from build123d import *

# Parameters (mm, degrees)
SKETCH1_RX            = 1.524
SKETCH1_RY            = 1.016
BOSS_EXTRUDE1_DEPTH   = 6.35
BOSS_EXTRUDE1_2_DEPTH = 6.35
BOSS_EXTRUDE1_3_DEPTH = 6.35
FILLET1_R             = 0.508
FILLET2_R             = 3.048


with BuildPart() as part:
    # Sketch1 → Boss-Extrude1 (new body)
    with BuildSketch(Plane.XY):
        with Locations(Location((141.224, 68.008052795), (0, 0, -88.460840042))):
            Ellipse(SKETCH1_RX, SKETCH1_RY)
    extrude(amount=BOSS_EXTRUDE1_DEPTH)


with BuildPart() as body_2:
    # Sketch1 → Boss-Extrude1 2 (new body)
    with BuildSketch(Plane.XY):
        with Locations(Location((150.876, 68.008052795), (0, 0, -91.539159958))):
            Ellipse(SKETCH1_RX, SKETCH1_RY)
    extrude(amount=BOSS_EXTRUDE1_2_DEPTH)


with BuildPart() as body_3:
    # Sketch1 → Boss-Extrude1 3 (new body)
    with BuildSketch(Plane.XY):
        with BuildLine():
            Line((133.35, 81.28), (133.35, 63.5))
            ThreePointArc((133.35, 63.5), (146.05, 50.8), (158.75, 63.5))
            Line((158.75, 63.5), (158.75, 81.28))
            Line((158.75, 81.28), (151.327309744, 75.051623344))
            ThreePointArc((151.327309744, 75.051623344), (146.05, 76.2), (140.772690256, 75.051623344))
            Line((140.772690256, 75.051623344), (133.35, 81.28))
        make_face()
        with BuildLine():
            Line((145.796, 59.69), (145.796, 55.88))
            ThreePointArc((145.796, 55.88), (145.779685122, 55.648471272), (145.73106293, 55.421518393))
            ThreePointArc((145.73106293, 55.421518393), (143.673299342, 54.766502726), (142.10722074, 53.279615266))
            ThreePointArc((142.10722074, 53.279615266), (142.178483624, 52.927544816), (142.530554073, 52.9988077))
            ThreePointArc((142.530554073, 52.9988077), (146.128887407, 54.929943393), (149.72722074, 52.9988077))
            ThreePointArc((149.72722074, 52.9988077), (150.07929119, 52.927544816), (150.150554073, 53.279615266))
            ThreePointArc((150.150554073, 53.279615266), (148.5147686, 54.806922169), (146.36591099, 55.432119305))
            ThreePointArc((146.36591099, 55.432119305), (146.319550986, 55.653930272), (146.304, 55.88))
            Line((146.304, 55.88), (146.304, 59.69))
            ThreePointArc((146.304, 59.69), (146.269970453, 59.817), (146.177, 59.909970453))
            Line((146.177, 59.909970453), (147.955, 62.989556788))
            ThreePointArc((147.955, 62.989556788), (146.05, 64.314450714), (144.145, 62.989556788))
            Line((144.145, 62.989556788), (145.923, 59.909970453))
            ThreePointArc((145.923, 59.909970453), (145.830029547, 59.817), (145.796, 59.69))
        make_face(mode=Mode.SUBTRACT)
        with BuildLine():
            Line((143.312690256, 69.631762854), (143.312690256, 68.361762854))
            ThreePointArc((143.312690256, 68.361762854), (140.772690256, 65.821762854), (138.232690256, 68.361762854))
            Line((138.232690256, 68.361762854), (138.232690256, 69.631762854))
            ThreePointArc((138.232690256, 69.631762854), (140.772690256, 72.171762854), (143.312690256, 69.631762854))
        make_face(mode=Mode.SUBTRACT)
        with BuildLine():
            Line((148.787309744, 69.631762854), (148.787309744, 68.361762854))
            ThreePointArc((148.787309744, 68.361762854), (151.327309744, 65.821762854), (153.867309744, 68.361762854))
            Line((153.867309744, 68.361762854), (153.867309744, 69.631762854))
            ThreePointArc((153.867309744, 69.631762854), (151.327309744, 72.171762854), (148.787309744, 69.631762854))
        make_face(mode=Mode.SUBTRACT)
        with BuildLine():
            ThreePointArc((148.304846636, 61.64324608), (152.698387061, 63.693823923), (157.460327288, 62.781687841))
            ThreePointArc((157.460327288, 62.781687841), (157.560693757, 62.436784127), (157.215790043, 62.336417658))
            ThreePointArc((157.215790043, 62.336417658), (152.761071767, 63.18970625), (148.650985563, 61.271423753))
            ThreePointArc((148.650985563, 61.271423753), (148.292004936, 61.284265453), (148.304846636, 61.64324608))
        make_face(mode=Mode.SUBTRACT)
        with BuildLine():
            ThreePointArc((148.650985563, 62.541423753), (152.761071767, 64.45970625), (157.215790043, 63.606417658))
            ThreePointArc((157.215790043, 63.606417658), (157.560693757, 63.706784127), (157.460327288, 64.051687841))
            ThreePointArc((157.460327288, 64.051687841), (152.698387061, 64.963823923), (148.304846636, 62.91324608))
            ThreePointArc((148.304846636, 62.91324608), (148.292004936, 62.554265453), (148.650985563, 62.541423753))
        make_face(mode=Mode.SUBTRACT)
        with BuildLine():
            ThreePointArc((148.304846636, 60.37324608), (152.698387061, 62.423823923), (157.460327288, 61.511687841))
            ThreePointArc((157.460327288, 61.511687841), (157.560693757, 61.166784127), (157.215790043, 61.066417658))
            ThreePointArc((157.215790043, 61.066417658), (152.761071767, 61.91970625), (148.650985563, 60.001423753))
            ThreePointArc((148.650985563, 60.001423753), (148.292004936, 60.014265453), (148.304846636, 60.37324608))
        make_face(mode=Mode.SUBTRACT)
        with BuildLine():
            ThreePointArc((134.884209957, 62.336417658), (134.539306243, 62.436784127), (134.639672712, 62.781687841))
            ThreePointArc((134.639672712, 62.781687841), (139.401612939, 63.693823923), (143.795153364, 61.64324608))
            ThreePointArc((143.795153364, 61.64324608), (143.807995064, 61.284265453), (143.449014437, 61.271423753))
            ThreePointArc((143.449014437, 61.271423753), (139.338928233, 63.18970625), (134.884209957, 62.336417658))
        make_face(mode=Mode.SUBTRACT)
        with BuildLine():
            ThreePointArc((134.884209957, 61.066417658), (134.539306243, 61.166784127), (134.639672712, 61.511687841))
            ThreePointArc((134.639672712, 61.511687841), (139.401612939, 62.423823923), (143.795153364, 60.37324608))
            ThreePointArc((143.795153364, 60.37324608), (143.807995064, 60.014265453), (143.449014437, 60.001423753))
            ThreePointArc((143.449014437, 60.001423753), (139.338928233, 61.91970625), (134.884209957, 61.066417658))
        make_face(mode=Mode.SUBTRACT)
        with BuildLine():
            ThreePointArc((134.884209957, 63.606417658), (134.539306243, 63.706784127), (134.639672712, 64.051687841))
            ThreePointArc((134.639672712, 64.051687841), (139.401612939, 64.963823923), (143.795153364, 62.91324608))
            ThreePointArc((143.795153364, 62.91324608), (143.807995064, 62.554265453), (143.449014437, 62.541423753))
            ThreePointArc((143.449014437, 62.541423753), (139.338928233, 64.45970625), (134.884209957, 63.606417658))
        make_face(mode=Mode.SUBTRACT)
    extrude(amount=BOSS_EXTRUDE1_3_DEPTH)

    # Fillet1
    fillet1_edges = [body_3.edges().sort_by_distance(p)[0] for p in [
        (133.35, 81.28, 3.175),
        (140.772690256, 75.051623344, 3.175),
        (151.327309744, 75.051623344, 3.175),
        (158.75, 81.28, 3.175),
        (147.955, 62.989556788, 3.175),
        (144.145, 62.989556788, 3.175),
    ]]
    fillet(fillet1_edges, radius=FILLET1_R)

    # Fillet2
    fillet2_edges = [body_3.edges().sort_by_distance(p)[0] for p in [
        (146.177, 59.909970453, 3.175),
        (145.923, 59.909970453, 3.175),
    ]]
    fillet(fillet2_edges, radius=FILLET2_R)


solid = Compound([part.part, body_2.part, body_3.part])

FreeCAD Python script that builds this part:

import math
import FreeCAD as App
import Part
import Sketcher
from FreeCAD import Vector
Q = App.Units.Quantity


def edges_at(feature, points):
    """Names of the edges that pass closest to the given points."""
    edges = feature.Shape.Edges
    near = lambda p: min(range(len(edges)), key=lambda i: edges[i].distToShape(Part.Vertex(*p))[0])
    return sorted({f"Edge{near(p) + 1}" for p in points})

doc = App.newDocument("Part")
body = doc.addObject("PartDesign::Body", "Body")

# Sketch on XY plane
sketch1 = doc.addObject("Sketcher::SketchObject", "Sketch")
body.addObject(sketch1)
sketch1.AttachmentSupport = (doc.XY_Plane, [""])
sketch1.MapMode = "FlatFace"
sketch1.addGeometry(Part.Ellipse(Vector(141.264935, 66.484603, 0), Vector(142.239633, 68.035343, 0), Vector(141.224, 68.008053, 0)), False)
sketch1.addConstraint(Sketcher.Constraint("Block", 0))
pad1 = doc.addObject("PartDesign::Pad", "Pad")
body.addObject(pad1)
pad1.Profile = sketch1
pad1.Length = Q("0.25 in")
body2 = doc.addObject("PartDesign::Body", "Body001")

# Sketch on XY plane
sketch2 = doc.addObject("Sketcher::SketchObject", "Sketch001")
body2.addObject(sketch2)
sketch2.AttachmentSupport = (doc.getObject("XY_Plane001"), [""])
sketch2.MapMode = "FlatFace"
sketch2.addGeometry(Part.Ellipse(Vector(150.835065, 66.484603, 0), Vector(151.891633, 67.980763, 0), Vector(150.876, 68.008053, 0)), False)
sketch2.addConstraint(Sketcher.Constraint("Block", 0))
pad2 = doc.addObject("PartDesign::Pad", "Pad001")
body2.addObject(pad2)
pad2.Profile = sketch2
pad2.Length = Q("0.25 in")
body3 = doc.addObject("PartDesign::Body", "Body002")

# Sketch on XY plane
sketch3 = doc.addObject("Sketcher::SketchObject", "Sketch002")
body3.addObject(sketch3)
sketch3.AttachmentSupport = (doc.getObject("XY_Plane002"), [""])
sketch3.MapMode = "FlatFace"
sketch3.addGeometry([
    Part.LineSegment(Vector(133.35, 81.28, 0), Vector(133.35, 63.5, 0)),  # 0
    Part.ArcOfCircle(Part.Circle(Vector(146.05, 63.5, 0), Vector(0, 0, 1), 12.7), math.radians(180), math.radians(360)),  # 1
    Part.LineSegment(Vector(158.75, 63.5, 0), Vector(158.75, 81.28, 0)),  # 2
    Part.LineSegment(Vector(158.75, 81.28, 0), Vector(151.33, 75.05, 0)),  # 3
    Part.ArcOfCircle(Part.Circle(Vector(146.05, 63.5, 0), Vector(0, 0, 1), 12.7), math.radians(65), math.radians(115)),  # 4
    Part.LineSegment(Vector(140.77, 75.05, 0), Vector(133.35, 81.28, 0)),  # 5
    Part.ArcOfCircle(Part.Circle(Vector(138.43, 54.61, 0), Vector(0, 0, 1), 7.37), math.radians(47), math.radians(119)),  # 6
    Part.ArcOfCircle(Part.Circle(Vector(134.76, 61.29, 0), Vector(0, 0, 1), 0.25), math.radians(119), math.radians(299)),  # 7
    Part.ArcOfCircle(Part.Circle(Vector(138.43, 54.61, 0), Vector(0, 0, 1), 7.87), math.radians(47), math.radians(119)),  # 8
    Part.ArcOfCircle(Part.Circle(Vector(143.62, 60.19, 0), Vector(0, 0, 1), 0.25), math.radians(-133), math.radians(47)),  # 9
    Part.ArcOfCircle(Part.Circle(Vector(138.43, 55.88, 0), Vector(0, 0, 1), 7.37), math.radians(47), math.radians(119)),  # 10
    Part.ArcOfCircle(Part.Circle(Vector(134.76, 62.56, 0), Vector(0, 0, 1), 0.25), math.radians(119), math.radians(299)),  # 11
    Part.ArcOfCircle(Part.Circle(Vector(138.43, 55.88, 0), Vector(0, 0, 1), 7.87), math.radians(47), math.radians(119)),  # 12
    Part.ArcOfCircle(Part.Circle(Vector(143.62, 61.46, 0), Vector(0, 0, 1), 0.25), math.radians(-133), math.radians(47)),  # 13
    Part.LineSegment(Vector(145.8, 55.88, 0), Vector(145.8, 59.69, 0)),  # 14
    Part.ArcOfCircle(Part.Circle(Vector(146.05, 59.69, 0), Vector(0, 0, 1), 0.25), math.radians(120), math.radians(180)),  # 15
    Part.LineSegment(Vector(145.92, 59.91, 0), Vector(144.15, 62.99, 0)),  # 16
    Part.ArcOfCircle(Part.Circle(Vector(146.05, 62.28, 0), Vector(0, 0, 1), 2.03), math.radians(20), math.radians(160)),  # 17
    Part.LineSegment(Vector(147.96, 62.99, 0), Vector(146.18, 59.91, 0)),  # 18
    Part.ArcOfCircle(Part.Circle(Vector(146.05, 59.69, 0), Vector(0, 0, 1), 0.25), math.radians(0), math.radians(60)),  # 19
    Part.LineSegment(Vector(146.3, 59.69, 0), Vector(146.3, 55.88, 0)),  # 20
    Part.ArcOfCircle(Part.Circle(Vector(147.96, 55.88, 0), Vector(0, 0, 1), 1.65), math.radians(-180), math.radians(-164.26)),  # 21
    Part.ArcOfCircle(Part.Circle(Vector(146.13, 50.61, 0), Vector(0, 0, 1), 4.83), math.radians(34), math.radians(87)),  # 22
    Part.ArcOfCircle(Part.Circle(Vector(149.94, 53.14, 0), Vector(0, 0, 1), 0.25), math.radians(-146), math.radians(34)),  # 23
    Part.ArcOfCircle(Part.Circle(Vector(146.13, 50.61, 0), Vector(0, 0, 1), 4.32), math.radians(34), math.radians(146)),  # 24
    Part.ArcOfCircle(Part.Circle(Vector(142.32, 53.14, 0), Vector(0, 0, 1), 0.25), math.radians(146), math.radians(326)),  # 25
    Part.ArcOfCircle(Part.Circle(Vector(146.13, 50.61, 0), Vector(0, 0, 1), 4.83), math.radians(95), math.radians(146)),  # 26
    Part.ArcOfCircle(Part.Circle(Vector(144.14, 55.88, 0), Vector(0, 0, 1), 1.65), math.radians(-16.12), math.radians(0)),  # 27
    Part.ArcOfCircle(Part.Circle(Vector(148.48, 60.19, 0), Vector(0, 0, 1), 0.25), math.radians(133), math.radians(313)),  # 28
    Part.ArcOfCircle(Part.Circle(Vector(153.67, 54.61, 0), Vector(0, 0, 1), 7.87), math.radians(61), math.radians(133)),  # 29
    Part.ArcOfCircle(Part.Circle(Vector(157.34, 61.29, 0), Vector(0, 0, 1), 0.25), math.radians(-119), math.radians(61)),  # 30
    Part.ArcOfCircle(Part.Circle(Vector(153.67, 54.61, 0), Vector(0, 0, 1), 7.37), math.radians(61), math.radians(133)),  # 31
    Part.ArcOfCircle(Part.Circle(Vector(148.48, 61.46, 0), Vector(0, 0, 1), 0.25), math.radians(133), math.radians(313)),  # 32
    Part.ArcOfCircle(Part.Circle(Vector(153.67, 55.88, 0), Vector(0, 0, 1), 7.87), math.radians(61), math.radians(133)),  # 33
    Part.ArcOfCircle(Part.Circle(Vector(157.34, 62.56, 0), Vector(0, 0, 1), 0.25), math.radians(-119), math.radians(61)),  # 34
    Part.ArcOfCircle(Part.Circle(Vector(153.67, 55.88, 0), Vector(0, 0, 1), 7.37), math.radians(61), math.radians(133)),  # 35
    Part.ArcOfCircle(Part.Circle(Vector(138.43, 57.15, 0), Vector(0, 0, 1), 7.37), math.radians(47), math.radians(119)),  # 36
    Part.ArcOfCircle(Part.Circle(Vector(134.76, 63.83, 0), Vector(0, 0, 1), 0.25), math.radians(119), math.radians(299)),  # 37
    Part.ArcOfCircle(Part.Circle(Vector(138.43, 57.15, 0), Vector(0, 0, 1), 7.87), math.radians(47), math.radians(119)),  # 38
    Part.ArcOfCircle(Part.Circle(Vector(143.62, 62.73, 0), Vector(0, 0, 1), 0.25), math.radians(-133), math.radians(47)),  # 39
    Part.ArcOfCircle(Part.Circle(Vector(140.77, 69.63, 0), Vector(0, 0, 1), 2.54), math.radians(0), math.radians(180)),  # 40
    Part.LineSegment(Vector(143.31, 69.63, 0), Vector(143.31, 68.36, 0)),  # 41
    Part.ArcOfCircle(Part.Circle(Vector(140.77, 68.36, 0), Vector(0, 0, 1), 2.54), math.radians(180), math.radians(360)),  # 42
    Part.LineSegment(Vector(138.23, 68.36, 0), Vector(138.23, 69.63, 0)),  # 43
    Part.ArcOfCircle(Part.Circle(Vector(153.67, 57.15, 0), Vector(0, 0, 1), 7.37), math.radians(61), math.radians(133)),  # 44
    Part.ArcOfCircle(Part.Circle(Vector(148.48, 62.73, 0), Vector(0, 0, 1), 0.25), math.radians(133), math.radians(313)),  # 45
    Part.ArcOfCircle(Part.Circle(Vector(153.67, 57.15, 0), Vector(0, 0, 1), 7.87), math.radians(61), math.radians(133)),  # 46
    Part.ArcOfCircle(Part.Circle(Vector(157.34, 63.83, 0), Vector(0, 0, 1), 0.25), math.radians(-119), math.radians(61)),  # 47
    Part.LineSegment(Vector(148.79, 68.36, 0), Vector(148.79, 69.63, 0)),  # 48
    Part.ArcOfCircle(Part.Circle(Vector(151.33, 69.63, 0), Vector(0, 0, 1), 2.54), math.radians(0), math.radians(180)),  # 49
    Part.LineSegment(Vector(153.87, 69.63, 0), Vector(153.87, 68.36, 0)),  # 50
    Part.ArcOfCircle(Part.Circle(Vector(151.33, 68.36, 0), Vector(0, 0, 1), 2.54), math.radians(180), math.radians(360)),  # 51
], False)
sketch3.addConstraint([
    Sketcher.Constraint("Tangent", 0, 2, 1, 1),
    Sketcher.Constraint("Tangent", 1, 2, 2, 1),
    Sketcher.Constraint("Coincident", 2, 2, 3, 1),
    Sketcher.Constraint("Coincident", 3, 2, 4, 1),
    Sketcher.Constraint("Coincident", 4, 2, 5, 1),
    Sketcher.Constraint("Coincident", 5, 2, 0, 1),
    Sketcher.Constraint("Tangent", 6, 2, 7, 2),
    Sketcher.Constraint("Tangent", 7, 1, 8, 2),
    Sketcher.Constraint("Tangent", 8, 1, 9, 2),
    Sketcher.Constraint("Tangent", 9, 1, 6, 1),
    Sketcher.Constraint("Tangent", 10, 2, 11, 2),
    Sketcher.Constraint("Tangent", 11, 1, 12, 2),
    Sketcher.Constraint("Tangent", 12, 1, 13, 2),
    Sketcher.Constraint("Tangent", 13, 1, 10, 1),
    Sketcher.Constraint("Tangent", 14, 2, 15, 2),
    Sketcher.Constraint("Coincident", 15, 1, 16, 1),
    Sketcher.Constraint("Coincident", 16, 2, 17, 2),
    Sketcher.Constraint("Coincident", 17, 1, 18, 1),
    Sketcher.Constraint("Coincident", 18, 2, 19, 2),
    Sketcher.Constraint("Tangent", 19, 1, 20, 1),
    Sketcher.Constraint("Tangent", 20, 2, 21, 1),
    Sketcher.Constraint("Coincident", 21, 2, 22, 2),
    Sketcher.Constraint("Tangent", 22, 1, 23, 2),
    Sketcher.Constraint("Tangent", 23, 1, 24, 1),
    Sketcher.Constraint("Tangent", 24, 2, 25, 2),
    Sketcher.Constraint("Tangent", 25, 1, 26, 2),
    Sketcher.Constraint("Coincident", 26, 1, 27, 1),
    Sketcher.Constraint("Tangent", 27, 2, 14, 1),
    Sketcher.Constraint("Tangent", 28, 1, 29, 2),
    Sketcher.Constraint("Tangent", 29, 1, 30, 2),
    Sketcher.Constraint("Tangent", 30, 1, 31, 1),
    Sketcher.Constraint("Tangent", 31, 2, 28, 2),
    Sketcher.Constraint("Tangent", 32, 1, 33, 2),
    Sketcher.Constraint("Tangent", 33, 1, 34, 2),
    Sketcher.Constraint("Tangent", 34, 1, 35, 1),
    Sketcher.Constraint("Tangent", 35, 2, 32, 2),
    Sketcher.Constraint("Tangent", 36, 2, 37, 2),
    Sketcher.Constraint("Tangent", 37, 1, 38, 2),
    Sketcher.Constraint("Tangent", 38, 1, 39, 2),
    Sketcher.Constraint("Tangent", 39, 1, 36, 1),
    Sketcher.Constraint("Tangent", 40, 1, 41, 1),
    Sketcher.Constraint("Tangent", 41, 2, 42, 2),
    Sketcher.Constraint("Tangent", 42, 1, 43, 1),
    Sketcher.Constraint("Tangent", 43, 2, 40, 2),
    Sketcher.Constraint("Tangent", 44, 2, 45, 2),
    Sketcher.Constraint("Tangent", 45, 1, 46, 2),
    Sketcher.Constraint("Tangent", 46, 1, 47, 2),
    Sketcher.Constraint("Tangent", 47, 1, 44, 1),
    Sketcher.Constraint("Tangent", 48, 2, 49, 2),
    Sketcher.Constraint("Tangent", 49, 1, 50, 1),
    Sketcher.Constraint("Tangent", 50, 2, 51, 2),
    Sketcher.Constraint("Tangent", 51, 1, 48, 1),
    Sketcher.Constraint("Vertical", 0),
    Sketcher.Constraint("Vertical", 2),
    Sketcher.Constraint("Vertical", 14),
    Sketcher.Constraint("Vertical", 20),
    Sketcher.Constraint("Vertical", 41),
    Sketcher.Constraint("Vertical", 43),
    Sketcher.Constraint("Vertical", 48),
    Sketcher.Constraint("Vertical", 50),
    Sketcher.Constraint("Coincident", 4, 3, 1, 3),
    Sketcher.Constraint("Coincident", 8, 3, 6, 3),
    Sketcher.Constraint("Coincident", 12, 3, 10, 3),
    Sketcher.Constraint("Coincident", 19, 3, 15, 3),
    Sketcher.Constraint("Coincident", 24, 3, 22, 3),
    Sketcher.Constraint("Coincident", 26, 3, 22, 3),
    Sketcher.Constraint("Coincident", 31, 3, 29, 3),
    Sketcher.Constraint("Coincident", 35, 3, 33, 3),
    Sketcher.Constraint("Coincident", 38, 3, 36, 3),
    Sketcher.Constraint("Coincident", 46, 3, 44, 3),
    Sketcher.Constraint("Equal", 1, 4),
    Sketcher.Constraint("Equal", 6, 10),
    Sketcher.Constraint("Equal", 9, 11),
    Sketcher.Constraint("Equal", 13, 15),
    Sketcher.Constraint("Equal", 15, 19),
    Sketcher.Constraint("Equal", 19, 23),
    Sketcher.Constraint("Equal", 23, 25),
    Sketcher.Constraint("Equal", 21, 27),
    Sketcher.Constraint("Equal", 25, 28),
    Sketcher.Constraint("Equal", 12, 29),
    Sketcher.Constraint("Equal", 30, 32),
    Sketcher.Constraint("Equal", 29, 33),
    Sketcher.Constraint("Equal", 35, 36),
    Sketcher.Constraint("Equal", 34, 37),
    Sketcher.Constraint("Equal", 36, 44),
    Sketcher.Constraint("Equal", 39, 45),
    Sketcher.Constraint("Equal", 42, 49),
    Sketcher.Constraint("Horizontal", 12, 3, 21, 3),
    Sketcher.Constraint("Horizontal", 23, 3, 25, 3),
    Sketcher.Constraint("Horizontal", 21, 3, 27, 3),
    Sketcher.Constraint("Horizontal", 9, 3, 28, 3),
    Sketcher.Constraint("Horizontal", 8, 3, 29, 3),
    Sketcher.Constraint("Horizontal", 7, 3, 30, 3),
    Sketcher.Constraint("Horizontal", 13, 3, 32, 3),
    Sketcher.Constraint("Horizontal", 27, 3, 33, 3),
    Sketcher.Constraint("Horizontal", 11, 3, 34, 3),
    Sketcher.Constraint("Horizontal", 38, 3, 44, 3),
    Sketcher.Constraint("Horizontal", 39, 3, 45, 3),
    Sketcher.Constraint("Horizontal", 37, 3, 47, 3),
    Sketcher.Constraint("Horizontal", 40, 3, 49, 3),
    Sketcher.Constraint("Horizontal", 42, 3, 51, 3),
    Sketcher.Constraint("Horizontal", 3, 2, 4, 2),
    Sketcher.Constraint("Horizontal", 2, 2, 5, 2),
    Sketcher.Constraint("Horizontal", 16, 2, 17, 1),
    Sketcher.Constraint("Horizontal", 15, 1, 18, 2),
    Sketcher.Constraint("Vertical", 8, 3, 10, 3),
    Sketcher.Constraint("Vertical", 7, 3, 11, 3),
    Sketcher.Constraint("Vertical", 9, 3, 13, 3),
    Sketcher.Constraint("Vertical", 4, 3, 15, 3),
    Sketcher.Constraint("Vertical", 15, 3, 17, 3),
    Sketcher.Constraint("Vertical", 28, 3, 32, 3),
    Sketcher.Constraint("Vertical", 12, 3, 36, 3),
    Sketcher.Constraint("Vertical", 11, 3, 37, 3),
    Sketcher.Constraint("Vertical", 13, 3, 39, 3),
    Sketcher.Constraint("Vertical", 35, 3, 44, 3),
    Sketcher.Constraint("Vertical", 51, 3, 3, 2),
    Sketcher.Constraint("Vertical", 42, 3, 4, 2),
    Sketcher.Constraint("Vertical", 27, 3, 16, 2),
    Sketcher.Constraint("Radius", 1, Q("0.5 in")),
    Sketcher.Constraint("Radius", 40, Q("0.1 in")),
    Sketcher.Constraint("Radius", 6, Q("0.29 in")),
    Sketcher.Constraint("Radius", 7, Q("0.01 in")),
    Sketcher.Constraint("Radius", 17, Q("0.08 in")),
    Sketcher.Constraint("Radius", 22, Q("0.19 in")),
    Sketcher.Constraint("DistanceY", 0, 2, 0, 1, Q("0.7 in")),
    Sketcher.Constraint("Angle", 3, Q("-140 deg")),
    Sketcher.Constraint("Angle", 16, Q("120 deg")),
    Sketcher.Constraint("Radius", 21, Q("0.065 in")),
    Sketcher.Constraint("DistanceY", 14, 1, 14, 2, Q("0.15 in")),
    Sketcher.Constraint("DistanceY", 41, 2, 41, 1, Q("0.05 in")),
    Sketcher.Constraint("DistanceY", -1, 1, 1, 3, Q("2.5 in")),
    Sketcher.Constraint("DistanceY", -1, 1, 10, 3, Q("2.2 in")),
    Sketcher.Constraint("Distance", 16, Q("0.14 in")),
    Sketcher.Constraint("DistanceX", -1, 1, 1, 3, Q("5.75 in")),
    Sketcher.Constraint("DistanceX", -1, 1, 6, 3, Q("5.45 in")),
    Sketcher.Constraint("DistanceY", -1, 1, 6, 3, Q("2.15 in")),
    Sketcher.Constraint("DistanceX", -1, 1, 29, 3, Q("6.05 in")),
    Sketcher.Constraint("DistanceY", -1, 1, 36, 3, Q("2.25 in")),
    Sketcher.Constraint("DistanceX", -1, 1, 7, 3, 134.761941),
    Sketcher.Constraint("DistanceY", -1, 1, 23, 3, 53.139211),
    Sketcher.Constraint("DistanceX", -1, 1, 21, 2, 146.365911),
    Sketcher.Constraint("DistanceX", -1, 1, 23, 1, 149.727221),
    Sketcher.Constraint("DistanceX", -1, 1, 9, 3, 143.622084),
    Sketcher.Constraint("DistanceY", -1, 1, 40, 3, 69.631763),
])
pad3 = doc.addObject("PartDesign::Pad", "Pad002")
body3.addObject(pad3)
pad3.Profile = sketch3
pad3.Length = Q("0.25 in")
doc.recompute()

fillet = doc.addObject("PartDesign::Fillet", "Fillet")
body3.addObject(fillet)
fillet.Base = (pad3, edges_at(pad3, [
    (133.35, 81.28, 3.175),
    (140.773, 75.052, 3.175),
    (151.327, 75.052, 3.175),
    (158.75, 81.28, 3.175),
    (147.955, 62.99, 3.175),
    (144.145, 62.99, 3.175),
]))
fillet.Radius = Q("0.02 in")
doc.recompute()

fillet2 = doc.addObject("PartDesign::Fillet", "Fillet001")
body3.addObject(fillet2)
fillet2.Base = (fillet, edges_at(fillet, [(146.177, 59.91, 3.175), (145.923, 59.91, 3.175)]))
fillet2.Radius = Q("0.12 in")

doc.recompute()
